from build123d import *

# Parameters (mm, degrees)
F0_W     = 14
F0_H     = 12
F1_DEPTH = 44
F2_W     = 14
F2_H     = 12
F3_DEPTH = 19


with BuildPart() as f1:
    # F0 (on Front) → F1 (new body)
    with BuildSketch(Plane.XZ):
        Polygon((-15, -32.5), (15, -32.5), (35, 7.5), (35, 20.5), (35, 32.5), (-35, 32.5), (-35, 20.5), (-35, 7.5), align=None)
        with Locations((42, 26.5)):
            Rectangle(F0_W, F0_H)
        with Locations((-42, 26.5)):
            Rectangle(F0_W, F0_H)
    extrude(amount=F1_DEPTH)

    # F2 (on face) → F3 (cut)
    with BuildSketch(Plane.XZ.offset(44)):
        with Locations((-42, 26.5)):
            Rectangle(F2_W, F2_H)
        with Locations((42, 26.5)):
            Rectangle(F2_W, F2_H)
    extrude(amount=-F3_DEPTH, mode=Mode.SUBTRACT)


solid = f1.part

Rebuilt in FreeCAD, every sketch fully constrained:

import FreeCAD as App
import Part
import Sketcher
from FreeCAD import Vector
Q = App.Units.Quantity


def add_polygon(sketch, points):
    """Adds a closed chain of lines whose ends are joined by coincident constraints."""
    first, n = sketch.GeometryCount, len(points)
    for a, b in zip(points, points[1:] + points[:1]):
        sketch.addGeometry(Part.LineSegment(App.Vector(*a, 0), App.Vector(*b, 0)), False)
    for i in range(n):
        sketch.addConstraint(Sketcher.Constraint("Coincident", first + i, 2, first + (i + 1) % n, 1))

doc = App.newDocument("Part")
params = doc.addObject("Spreadsheet::Sheet", "Params")
for row, (alias, value) in enumerate([
    ("sketch1_width", "30 mm"),
    ("sketch1_width2", "14 mm"),
    ("sketch1_width3", "98 mm"),
    ("sketch1_height", "13 mm"),
    ("sketch1_height2", "12 mm"),
    ("pad1_length", "44 mm"),
    ("sketch2_width", "14 mm"),
    ("sketch2_height", "12 mm"),
    ("pocket1_length", "19 mm"),
], start=1):
    params.set(f"A{row}", alias)
    params.set(f"B{row}", "=" + value)
    params.setAlias(f"B{row}", alias)

body = doc.addObject("PartDesign::Body", "Body")

# Sketch on XZ plane
sketch1 = body.newObject("Sketcher::SketchObject", "Sketch")
sketch1.AttachmentSupport = (doc.getObject("XZ_Plane"), [""])
sketch1.MapMode = "FlatFace"
add_polygon(sketch1, [(-15, -32), (15, -32), (35, 8), (35, 20), (49, 20), (49, 32), (-49, 32), (-49, 20), (-35, 20), (-35, 8)])  # lines 0-9
sketch1.addConstraint([
    Sketcher.Constraint("Horizontal", 0),
    Sketcher.Constraint("Vertical", 2),
    Sketcher.Constraint("Horizontal", 3),
    Sketcher.Constraint("Vertical", 4),
    Sketcher.Constraint("Horizontal", 5),
    Sketcher.Constraint("Vertical", 6),
    Sketcher.Constraint("Horizontal", 7),
    Sketcher.Constraint("Vertical", 8),
    Sketcher.Constraint("Symmetric", 3, 2, 6, 2, -2),
    Sketcher.Constraint("Symmetric", 1, 2, 8, 2, -2),
    Sketcher.Constraint("Equal", 1, 9),
    Sketcher.Constraint("DistanceX", 0, 1, 0, 2, Q("30 mm")),
    Sketcher.Constraint("DistanceX", 3, 1, 3, 2, Q("14 mm")),
    Sketcher.Constraint("DistanceX", 5, 2, 5, 1, Q("98 mm")),
    Sketcher.Constraint("DistanceY", 2, 1, 2, 2, Q("13 mm")),
    Sketcher.Constraint("DistanceY", 4, 1, 4, 2, Q("12 mm")),
    Sketcher.Constraint("DistanceY", 0, 2, 1, 2, Q("40 mm")),
    Sketcher.Constraint("DistanceY", 0, 2, -1, 1, Q("32.5 mm")),
])
sketch1.setExpression("Constraints[21]", "Params.sketch1_width")
sketch1.setExpression("Constraints[22]", "Params.sketch1_width2")
sketch1.setExpression("Constraints[23]", "Params.sketch1_width3")
sketch1.setExpression("Constraints[24]", "Params.sketch1_height")
sketch1.setExpression("Constraints[25]", "Params.sketch1_height2")
pad1 = body.newObject("PartDesign::Pad", "Pad")
pad1.Profile = sketch1
pad1.setExpression("Length", "Params.pad1_length")

# Sketch on XZ plane
sketch2 = body.newObject("Sketcher::SketchObject", "Sketch001")
sketch2.AttachmentSupport = (doc.getObject("XZ_Plane"), [""])
sketch2.MapMode = "FlatFace"
sketch2.AttachmentOffset = App.Placement(Vector(0, 0, 44), App.Rotation())
add_polygon(sketch2, [(-49, 32), (-49, 20), (-35, 20), (-35, 32)])  # lines 0-3
add_polygon(sketch2, [(35, 32), (35, 20), (49, 20), (49, 32)])  # lines 4-7
sketch2.addConstraint([
    Sketcher.Constraint("Vertical", 0),
    Sketcher.Constraint("Horizontal", 1),
    Sketcher.Constraint("Vertical", 2),
    Sketcher.Constraint("Horizontal", 3),
    Sketcher.Constraint("Vertical", 4),
    Sketcher.Constraint("Horizontal", 5),
    Sketcher.Constraint("Vertical", 6),
    Sketcher.Constraint("Horizontal", 7),
    Sketcher.Constraint("Symmetric", 1, 2, 4, 2, -2),
    Sketcher.Constraint("Symmetric", 3, 2, 6, 2, -2),
    Sketcher.Constraint("DistanceX", 1, 1, 1, 2, Q("14 mm")),
    Sketcher.Constraint("DistanceY", 0, 2, 0, 1, Q("12 mm")),
    Sketcher.Constraint("DistanceX", 0, 2, -1, 1, Q("49 mm")),
    Sketcher.Constraint("DistanceY", -1, 1, 0, 2, Q("20.5 mm")),
])
sketch2.setExpression("Constraints[18]", "Params.sketch2_width")
sketch2.setExpression("Constraints[19]", "Params.sketch2_height")
pocket1 = body.newObject("PartDesign::Pocket", "Pocket")
pocket1.Profile = sketch2
pocket1.setExpression("Length", "Params.pocket1_length")

doc.recompute()
